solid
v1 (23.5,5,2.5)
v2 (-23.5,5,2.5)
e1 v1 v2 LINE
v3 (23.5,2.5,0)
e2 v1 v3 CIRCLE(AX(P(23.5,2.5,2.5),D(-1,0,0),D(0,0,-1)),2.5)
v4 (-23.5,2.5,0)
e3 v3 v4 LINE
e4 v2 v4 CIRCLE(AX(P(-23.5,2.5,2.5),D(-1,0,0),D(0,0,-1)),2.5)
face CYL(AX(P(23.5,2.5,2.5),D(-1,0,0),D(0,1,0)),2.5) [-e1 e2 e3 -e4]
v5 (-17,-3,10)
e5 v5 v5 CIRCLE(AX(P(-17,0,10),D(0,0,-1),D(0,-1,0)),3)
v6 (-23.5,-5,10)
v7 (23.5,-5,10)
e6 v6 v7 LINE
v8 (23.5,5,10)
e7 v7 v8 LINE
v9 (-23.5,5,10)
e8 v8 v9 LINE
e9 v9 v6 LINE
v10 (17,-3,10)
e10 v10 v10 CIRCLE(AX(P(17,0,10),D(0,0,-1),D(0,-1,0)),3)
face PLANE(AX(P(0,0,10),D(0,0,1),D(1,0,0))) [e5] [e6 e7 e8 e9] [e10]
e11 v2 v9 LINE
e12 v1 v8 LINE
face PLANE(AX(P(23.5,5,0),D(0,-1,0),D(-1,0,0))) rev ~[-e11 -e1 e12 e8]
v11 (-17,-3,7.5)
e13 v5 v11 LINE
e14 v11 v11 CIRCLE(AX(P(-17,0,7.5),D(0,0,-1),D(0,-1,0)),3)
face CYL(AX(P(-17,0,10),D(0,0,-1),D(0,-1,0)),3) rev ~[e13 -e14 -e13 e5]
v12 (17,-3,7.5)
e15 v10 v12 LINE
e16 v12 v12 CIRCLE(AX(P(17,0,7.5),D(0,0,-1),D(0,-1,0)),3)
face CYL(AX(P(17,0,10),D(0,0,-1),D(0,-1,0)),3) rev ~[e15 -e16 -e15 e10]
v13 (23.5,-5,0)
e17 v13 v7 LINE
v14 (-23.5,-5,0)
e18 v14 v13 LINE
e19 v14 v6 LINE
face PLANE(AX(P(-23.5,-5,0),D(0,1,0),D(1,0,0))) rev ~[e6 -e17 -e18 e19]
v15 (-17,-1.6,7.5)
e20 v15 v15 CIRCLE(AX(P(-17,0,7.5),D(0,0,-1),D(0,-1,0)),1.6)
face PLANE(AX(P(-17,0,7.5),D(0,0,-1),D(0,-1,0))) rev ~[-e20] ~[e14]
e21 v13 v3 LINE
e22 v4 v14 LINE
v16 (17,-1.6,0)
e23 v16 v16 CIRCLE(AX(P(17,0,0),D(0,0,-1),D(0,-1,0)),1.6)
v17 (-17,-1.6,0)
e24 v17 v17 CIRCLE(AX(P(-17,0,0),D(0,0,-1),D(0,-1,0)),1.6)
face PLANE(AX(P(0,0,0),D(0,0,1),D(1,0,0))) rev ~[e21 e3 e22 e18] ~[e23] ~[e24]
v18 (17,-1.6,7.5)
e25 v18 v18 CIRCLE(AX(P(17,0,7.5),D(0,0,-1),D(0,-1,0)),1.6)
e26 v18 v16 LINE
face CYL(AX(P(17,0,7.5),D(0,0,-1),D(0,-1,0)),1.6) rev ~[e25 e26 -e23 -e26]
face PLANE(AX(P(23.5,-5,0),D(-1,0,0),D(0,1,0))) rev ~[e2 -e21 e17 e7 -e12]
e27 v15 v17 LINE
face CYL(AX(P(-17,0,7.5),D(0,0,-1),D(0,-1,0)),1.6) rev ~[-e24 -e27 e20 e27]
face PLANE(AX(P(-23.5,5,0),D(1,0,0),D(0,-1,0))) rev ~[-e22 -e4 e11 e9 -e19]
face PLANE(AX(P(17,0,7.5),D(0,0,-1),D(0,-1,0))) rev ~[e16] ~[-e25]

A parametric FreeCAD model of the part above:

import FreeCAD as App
import Part
import Sketcher
from FreeCAD import Vector
Q = App.Units.Quantity


def edges_at(feature, points):
    """Names of the edges that pass closest to the given points."""
    edges = feature.Shape.Edges
    near = lambda p: min(range(len(edges)), key=lambda i: edges[i].distToShape(Part.Vertex(*p))[0])
    return sorted({f"Edge{near(p) + 1}" for p in points})


def add_polygon(sketch, points):
    """Adds a closed chain of lines whose ends are joined by coincident constraints."""
    first, n = sketch.GeometryCount, len(points)
    for a, b in zip(points, points[1:] + points[:1]):
        sketch.addGeometry(Part.LineSegment(App.Vector(*a, 0), App.Vector(*b, 0)), False)
    for i in range(n):
        sketch.addConstraint(Sketcher.Constraint("Coincident", first + i, 2, first + (i + 1) % n, 1))

doc = App.newDocument("Part")
params = doc.addObject("Spreadsheet::Sheet", "Params")
for row, (alias, value) in enumerate([
    ("sketch1_width", "47 mm"),
    ("sketch1_height", "10 mm"),
    ("pad1_length", "10 mm"),
    ("sketch2_diameter", "3.2 mm"),
    ("hole_diameter", "3.2 mm"),
    ("hole_cbore_diameter", "6 mm"),
    ("hole_cbore_depth", "2.5 mm"),
    ("fillet_radius", "2.5 mm"),
], start=1):
    params.set(f"A{row}", alias)
    params.set(f"B{row}", "=" + value)
    params.setAlias(f"B{row}", alias)

body = doc.addObject("PartDesign::Body", "Body")

sketch1 = body.newObject("Sketcher::SketchObject", "Sketch")
sketch1.AttachmentSupport = (doc.getObject("XY_Plane"), [""])
sketch1.MapMode = "FlatFace"
add_polygon(sketch1, [(-23.5, 5), (-23.5, -5), (23.5, -5), (23.5, 5)])
sketch1.addConstraint([
    Sketcher.Constraint("Vertical", 0),
    Sketcher.Constraint("Horizontal", 1),
    Sketcher.Constraint("Vertical", 2),
    Sketcher.Constraint("Horizontal", 3),
    Sketcher.Constraint("Symmetric", 0, 2, 2, 2, -1, 1),
    Sketcher.Constraint("DistanceX", 1, 1, 1, 2, Q("47 mm")),
    Sketcher.Constraint("DistanceY", 0, 2, 0, 1, Q("10 mm")),
])
sketch1.setExpression("Constraints[9]", "Params.sketch1_width")
sketch1.setExpression("Constraints[10]", "Params.sketch1_height")
pad1 = body.newObject("PartDesign::Pad", "Pad")
pad1.Profile = sketch1
pad1.setExpression("Length", "Params.pad1_length")

sketch2 = body.newObject("Sketcher::SketchObject", "Sketch001")
sketch2.AttachmentSupport = (doc.getObject("XY_Plane"), [""])
sketch2.MapMode = "FlatFace"
sketch2.AttachmentOffset = App.Placement(Vector(0, 0, 10), App.Rotation())
sketch2.addGeometry([
    Part.Circle(Vector(-17, 0, 0), Vector(0, 0, 1), 1.6),
    Part.Circle(Vector(17, 0, 0), Vector(0, 0, 1), 1.6),
], False)
sketch2.addConstraint([
    Sketcher.Constraint("Equal", 0, 1),
    Sketcher.Constraint("Symmetric", 0, 3, 1, 3, -1, 1),
    Sketcher.Constraint("PointOnObject", 0, 3, -1),
    Sketcher.Constraint("Diameter", 0, Q("3.2 mm")),
    Sketcher.Constraint("DistanceX", 0, 3, -1, 1, Q("17 mm")),
])
sketch2.setExpression("Constraints[3]", "Params.sketch2_diameter")
doc.recompute()
hole = body.newObject("PartDesign::Hole", "Hole")
hole.Profile = sketch2
hole.ThreadType = "None"
hole.setExpression("Diameter", "Params.hole_diameter")
hole.DepthType = "ThroughAll"
hole.HoleCutType = "Counterbore"
hole.setExpression("HoleCutDiameter", "Params.hole_cbore_diameter")
hole.setExpression("HoleCutDepth", "Params.hole_cbore_depth")
doc.recompute()

fillet = body.newObject("PartDesign::Fillet", "Fillet")
fillet.Base = (hole, edges_at(hole, [(0, 5, 0)]))
fillet.setExpression("Radius", "Params.fillet_radius")

doc.recompute()
